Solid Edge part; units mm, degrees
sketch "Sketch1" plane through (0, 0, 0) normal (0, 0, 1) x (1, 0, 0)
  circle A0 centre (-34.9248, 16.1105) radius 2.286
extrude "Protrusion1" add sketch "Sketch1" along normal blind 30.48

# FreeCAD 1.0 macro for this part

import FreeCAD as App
import Part
import Sketcher

V = App.Vector
Q = App.Units.Quantity

doc = App.newDocument("Part")
body = doc.addObject("PartDesign::Body", "Body")

sketch1 = body.newObject("Sketcher::SketchObject", "Sketch")
sketch1.AttachmentSupport = (doc.getObject("XY_Plane"), [""])
sketch1.MapMode = "FlatFace"
sketch1.addGeometry(Part.Circle(V(-34.9, 16.1, 0), V(0, 0, 1), 2.3), False)
sketch1.addConstraint(Sketcher.Constraint("Diameter", 0, Q("0.18 in")))
sketch1.addConstraint(Sketcher.Constraint("DistanceX", 0, 3, -1, 1, Q("1.375 in")))
sketch1.addConstraint(Sketcher.Constraint("DistanceY", -1, 1, 0, 3, Q("16.1105 mm")))
pad1 = body.newObject("PartDesign::Pad", "Pad")
pad1.Profile = sketch1
pad1.Length = Q("1.2 in")

doc.recompute()
